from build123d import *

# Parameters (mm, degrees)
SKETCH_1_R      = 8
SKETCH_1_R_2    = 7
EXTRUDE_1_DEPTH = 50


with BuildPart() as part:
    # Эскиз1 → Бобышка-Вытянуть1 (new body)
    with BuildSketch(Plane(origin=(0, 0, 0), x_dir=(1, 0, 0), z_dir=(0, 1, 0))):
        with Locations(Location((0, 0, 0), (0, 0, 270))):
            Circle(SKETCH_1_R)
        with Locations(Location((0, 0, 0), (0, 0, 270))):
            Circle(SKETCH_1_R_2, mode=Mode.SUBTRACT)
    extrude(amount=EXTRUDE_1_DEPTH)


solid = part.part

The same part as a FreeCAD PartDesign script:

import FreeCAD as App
import Part
import Sketcher

V = App.Vector
Q = App.Units.Quantity

doc = App.newDocument("Part")
body = doc.addObject("PartDesign::Body", "Body")

# Sketch on XZ plane
sketch1 = body.newObject("Sketcher::SketchObject", "Sketch")
sketch1.AttachmentSupport = (doc.getObject("XZ_Plane"), [""])
sketch1.MapMode = "FlatFace"
sketch1.addGeometry(Part.Circle(V(0, 0, 0), V(0, 0, 1), 8), False)
sketch1.addGeometry(Part.Circle(V(0, 0, 0), V(0, 0, 1), 7), False)
sketch1.addConstraint(Sketcher.Constraint("Coincident", 0, 3, -1, 1))
sketch1.addConstraint(Sketcher.Constraint("Coincident", 1, 3, -1, 1))
sketch1.addConstraint(Sketcher.Constraint("Diameter", 0, Q("16 mm")))
sketch1.addConstraint(Sketcher.Constraint("Diameter", 1, Q("14 mm")))
pad1 = body.newObject("PartDesign::Pad", "Pad")
pad1.Profile = sketch1
pad1.Length = 50
pad1.Reversed = True

doc.recompute()
